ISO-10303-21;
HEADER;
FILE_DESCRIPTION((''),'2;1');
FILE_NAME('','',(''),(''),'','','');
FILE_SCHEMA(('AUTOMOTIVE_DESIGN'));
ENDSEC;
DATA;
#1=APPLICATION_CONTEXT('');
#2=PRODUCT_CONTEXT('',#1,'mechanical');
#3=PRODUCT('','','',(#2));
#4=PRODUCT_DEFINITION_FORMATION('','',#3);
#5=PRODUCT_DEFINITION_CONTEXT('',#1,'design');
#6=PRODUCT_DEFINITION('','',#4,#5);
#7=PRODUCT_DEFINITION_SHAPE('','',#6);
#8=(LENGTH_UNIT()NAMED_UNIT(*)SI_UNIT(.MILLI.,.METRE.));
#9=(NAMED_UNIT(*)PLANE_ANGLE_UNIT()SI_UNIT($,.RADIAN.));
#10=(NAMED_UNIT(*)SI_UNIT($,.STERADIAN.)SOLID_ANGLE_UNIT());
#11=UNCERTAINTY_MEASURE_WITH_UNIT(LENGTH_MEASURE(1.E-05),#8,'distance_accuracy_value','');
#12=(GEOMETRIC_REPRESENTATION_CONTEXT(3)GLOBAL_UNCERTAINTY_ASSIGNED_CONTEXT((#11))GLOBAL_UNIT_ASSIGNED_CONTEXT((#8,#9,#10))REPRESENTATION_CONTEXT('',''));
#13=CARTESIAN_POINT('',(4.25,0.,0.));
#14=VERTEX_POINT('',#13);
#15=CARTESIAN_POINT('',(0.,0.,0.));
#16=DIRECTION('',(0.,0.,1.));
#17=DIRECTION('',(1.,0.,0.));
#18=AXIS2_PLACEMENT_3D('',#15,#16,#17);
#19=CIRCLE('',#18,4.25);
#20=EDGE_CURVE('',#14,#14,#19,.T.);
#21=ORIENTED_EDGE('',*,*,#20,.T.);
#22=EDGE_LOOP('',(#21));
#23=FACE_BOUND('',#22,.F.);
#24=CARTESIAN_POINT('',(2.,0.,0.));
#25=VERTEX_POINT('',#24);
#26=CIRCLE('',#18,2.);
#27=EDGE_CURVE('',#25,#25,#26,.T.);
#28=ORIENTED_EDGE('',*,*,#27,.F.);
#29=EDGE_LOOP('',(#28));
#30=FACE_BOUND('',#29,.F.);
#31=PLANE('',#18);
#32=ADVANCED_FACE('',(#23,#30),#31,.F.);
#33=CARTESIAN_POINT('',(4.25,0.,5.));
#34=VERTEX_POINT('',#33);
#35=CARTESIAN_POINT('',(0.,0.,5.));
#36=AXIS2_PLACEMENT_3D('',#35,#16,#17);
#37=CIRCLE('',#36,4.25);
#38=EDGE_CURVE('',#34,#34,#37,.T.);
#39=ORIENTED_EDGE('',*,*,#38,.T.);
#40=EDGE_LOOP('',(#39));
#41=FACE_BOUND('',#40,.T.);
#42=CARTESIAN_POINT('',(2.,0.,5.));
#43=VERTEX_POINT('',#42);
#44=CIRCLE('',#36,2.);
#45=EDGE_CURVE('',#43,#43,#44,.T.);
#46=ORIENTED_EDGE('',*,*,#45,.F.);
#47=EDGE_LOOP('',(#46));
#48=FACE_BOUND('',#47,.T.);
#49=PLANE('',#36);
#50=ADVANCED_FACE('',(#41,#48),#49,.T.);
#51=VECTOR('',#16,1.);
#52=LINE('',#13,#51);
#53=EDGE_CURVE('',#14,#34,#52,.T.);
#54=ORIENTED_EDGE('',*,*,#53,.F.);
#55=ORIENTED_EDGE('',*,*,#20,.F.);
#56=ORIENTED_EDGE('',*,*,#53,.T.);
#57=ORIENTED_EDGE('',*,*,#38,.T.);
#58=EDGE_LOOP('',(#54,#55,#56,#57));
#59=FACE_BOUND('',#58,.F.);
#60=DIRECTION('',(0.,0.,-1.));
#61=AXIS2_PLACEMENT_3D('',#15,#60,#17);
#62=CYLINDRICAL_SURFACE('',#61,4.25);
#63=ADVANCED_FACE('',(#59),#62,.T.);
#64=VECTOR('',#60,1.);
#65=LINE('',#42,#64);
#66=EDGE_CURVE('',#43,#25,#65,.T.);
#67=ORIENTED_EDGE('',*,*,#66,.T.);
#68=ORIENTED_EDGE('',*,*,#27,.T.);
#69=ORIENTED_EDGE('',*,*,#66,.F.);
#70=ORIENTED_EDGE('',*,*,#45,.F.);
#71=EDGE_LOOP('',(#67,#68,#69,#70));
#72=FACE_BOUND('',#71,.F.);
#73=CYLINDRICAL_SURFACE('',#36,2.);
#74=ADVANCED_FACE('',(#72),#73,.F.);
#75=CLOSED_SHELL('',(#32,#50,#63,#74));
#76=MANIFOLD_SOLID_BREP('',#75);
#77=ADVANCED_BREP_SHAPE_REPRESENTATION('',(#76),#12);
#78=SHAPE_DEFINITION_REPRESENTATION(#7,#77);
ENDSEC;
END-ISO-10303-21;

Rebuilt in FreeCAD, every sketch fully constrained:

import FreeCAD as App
import Part
import Sketcher

V = App.Vector
Q = App.Units.Quantity

doc = App.newDocument("Part")
body = doc.addObject("PartDesign::Body", "Body")

# Sketch on XY plane
sketch1 = body.newObject("Sketcher::SketchObject", "Sketch")
sketch1.AttachmentSupport = (doc.getObject("XY_Plane"), [""])
sketch1.MapMode = "FlatFace"
sketch1.addGeometry(Part.Circle(V(0, 0, 0), V(0, 0, 1), 4.2), False)
sketch1.addConstraint([
    Sketcher.Constraint("Coincident", 0, 3, -1, 1),
    Sketcher.Constraint("Diameter", 0, Q("8.5 mm")),
])
pad1 = body.newObject("PartDesign::Pad", "Pad")
pad1.Profile = sketch1
pad1.Length = 5

# Sketch on XY plane
sketch2 = body.newObject("Sketcher::SketchObject", "Sketch001")
sketch2.AttachmentSupport = (doc.getObject("XY_Plane"), [""])
sketch2.MapMode = "FlatFace"
sketch2.AttachmentOffset = App.Placement(V(0, 0, 5), App.Rotation())
sketch2.addGeometry(Part.Circle(V(0, 0, 0), V(0, 0, 1), 2), False)
sketch2.addConstraint([
    Sketcher.Constraint("Coincident", 0, 3, -1, 1),
    Sketcher.Constraint("Diameter", 0, Q("4 mm")),
])
pocket1 = body.newObject("PartDesign::Pocket", "Pocket")
pocket1.Profile = sketch2
pocket1.Length = 5

doc.recompute()
